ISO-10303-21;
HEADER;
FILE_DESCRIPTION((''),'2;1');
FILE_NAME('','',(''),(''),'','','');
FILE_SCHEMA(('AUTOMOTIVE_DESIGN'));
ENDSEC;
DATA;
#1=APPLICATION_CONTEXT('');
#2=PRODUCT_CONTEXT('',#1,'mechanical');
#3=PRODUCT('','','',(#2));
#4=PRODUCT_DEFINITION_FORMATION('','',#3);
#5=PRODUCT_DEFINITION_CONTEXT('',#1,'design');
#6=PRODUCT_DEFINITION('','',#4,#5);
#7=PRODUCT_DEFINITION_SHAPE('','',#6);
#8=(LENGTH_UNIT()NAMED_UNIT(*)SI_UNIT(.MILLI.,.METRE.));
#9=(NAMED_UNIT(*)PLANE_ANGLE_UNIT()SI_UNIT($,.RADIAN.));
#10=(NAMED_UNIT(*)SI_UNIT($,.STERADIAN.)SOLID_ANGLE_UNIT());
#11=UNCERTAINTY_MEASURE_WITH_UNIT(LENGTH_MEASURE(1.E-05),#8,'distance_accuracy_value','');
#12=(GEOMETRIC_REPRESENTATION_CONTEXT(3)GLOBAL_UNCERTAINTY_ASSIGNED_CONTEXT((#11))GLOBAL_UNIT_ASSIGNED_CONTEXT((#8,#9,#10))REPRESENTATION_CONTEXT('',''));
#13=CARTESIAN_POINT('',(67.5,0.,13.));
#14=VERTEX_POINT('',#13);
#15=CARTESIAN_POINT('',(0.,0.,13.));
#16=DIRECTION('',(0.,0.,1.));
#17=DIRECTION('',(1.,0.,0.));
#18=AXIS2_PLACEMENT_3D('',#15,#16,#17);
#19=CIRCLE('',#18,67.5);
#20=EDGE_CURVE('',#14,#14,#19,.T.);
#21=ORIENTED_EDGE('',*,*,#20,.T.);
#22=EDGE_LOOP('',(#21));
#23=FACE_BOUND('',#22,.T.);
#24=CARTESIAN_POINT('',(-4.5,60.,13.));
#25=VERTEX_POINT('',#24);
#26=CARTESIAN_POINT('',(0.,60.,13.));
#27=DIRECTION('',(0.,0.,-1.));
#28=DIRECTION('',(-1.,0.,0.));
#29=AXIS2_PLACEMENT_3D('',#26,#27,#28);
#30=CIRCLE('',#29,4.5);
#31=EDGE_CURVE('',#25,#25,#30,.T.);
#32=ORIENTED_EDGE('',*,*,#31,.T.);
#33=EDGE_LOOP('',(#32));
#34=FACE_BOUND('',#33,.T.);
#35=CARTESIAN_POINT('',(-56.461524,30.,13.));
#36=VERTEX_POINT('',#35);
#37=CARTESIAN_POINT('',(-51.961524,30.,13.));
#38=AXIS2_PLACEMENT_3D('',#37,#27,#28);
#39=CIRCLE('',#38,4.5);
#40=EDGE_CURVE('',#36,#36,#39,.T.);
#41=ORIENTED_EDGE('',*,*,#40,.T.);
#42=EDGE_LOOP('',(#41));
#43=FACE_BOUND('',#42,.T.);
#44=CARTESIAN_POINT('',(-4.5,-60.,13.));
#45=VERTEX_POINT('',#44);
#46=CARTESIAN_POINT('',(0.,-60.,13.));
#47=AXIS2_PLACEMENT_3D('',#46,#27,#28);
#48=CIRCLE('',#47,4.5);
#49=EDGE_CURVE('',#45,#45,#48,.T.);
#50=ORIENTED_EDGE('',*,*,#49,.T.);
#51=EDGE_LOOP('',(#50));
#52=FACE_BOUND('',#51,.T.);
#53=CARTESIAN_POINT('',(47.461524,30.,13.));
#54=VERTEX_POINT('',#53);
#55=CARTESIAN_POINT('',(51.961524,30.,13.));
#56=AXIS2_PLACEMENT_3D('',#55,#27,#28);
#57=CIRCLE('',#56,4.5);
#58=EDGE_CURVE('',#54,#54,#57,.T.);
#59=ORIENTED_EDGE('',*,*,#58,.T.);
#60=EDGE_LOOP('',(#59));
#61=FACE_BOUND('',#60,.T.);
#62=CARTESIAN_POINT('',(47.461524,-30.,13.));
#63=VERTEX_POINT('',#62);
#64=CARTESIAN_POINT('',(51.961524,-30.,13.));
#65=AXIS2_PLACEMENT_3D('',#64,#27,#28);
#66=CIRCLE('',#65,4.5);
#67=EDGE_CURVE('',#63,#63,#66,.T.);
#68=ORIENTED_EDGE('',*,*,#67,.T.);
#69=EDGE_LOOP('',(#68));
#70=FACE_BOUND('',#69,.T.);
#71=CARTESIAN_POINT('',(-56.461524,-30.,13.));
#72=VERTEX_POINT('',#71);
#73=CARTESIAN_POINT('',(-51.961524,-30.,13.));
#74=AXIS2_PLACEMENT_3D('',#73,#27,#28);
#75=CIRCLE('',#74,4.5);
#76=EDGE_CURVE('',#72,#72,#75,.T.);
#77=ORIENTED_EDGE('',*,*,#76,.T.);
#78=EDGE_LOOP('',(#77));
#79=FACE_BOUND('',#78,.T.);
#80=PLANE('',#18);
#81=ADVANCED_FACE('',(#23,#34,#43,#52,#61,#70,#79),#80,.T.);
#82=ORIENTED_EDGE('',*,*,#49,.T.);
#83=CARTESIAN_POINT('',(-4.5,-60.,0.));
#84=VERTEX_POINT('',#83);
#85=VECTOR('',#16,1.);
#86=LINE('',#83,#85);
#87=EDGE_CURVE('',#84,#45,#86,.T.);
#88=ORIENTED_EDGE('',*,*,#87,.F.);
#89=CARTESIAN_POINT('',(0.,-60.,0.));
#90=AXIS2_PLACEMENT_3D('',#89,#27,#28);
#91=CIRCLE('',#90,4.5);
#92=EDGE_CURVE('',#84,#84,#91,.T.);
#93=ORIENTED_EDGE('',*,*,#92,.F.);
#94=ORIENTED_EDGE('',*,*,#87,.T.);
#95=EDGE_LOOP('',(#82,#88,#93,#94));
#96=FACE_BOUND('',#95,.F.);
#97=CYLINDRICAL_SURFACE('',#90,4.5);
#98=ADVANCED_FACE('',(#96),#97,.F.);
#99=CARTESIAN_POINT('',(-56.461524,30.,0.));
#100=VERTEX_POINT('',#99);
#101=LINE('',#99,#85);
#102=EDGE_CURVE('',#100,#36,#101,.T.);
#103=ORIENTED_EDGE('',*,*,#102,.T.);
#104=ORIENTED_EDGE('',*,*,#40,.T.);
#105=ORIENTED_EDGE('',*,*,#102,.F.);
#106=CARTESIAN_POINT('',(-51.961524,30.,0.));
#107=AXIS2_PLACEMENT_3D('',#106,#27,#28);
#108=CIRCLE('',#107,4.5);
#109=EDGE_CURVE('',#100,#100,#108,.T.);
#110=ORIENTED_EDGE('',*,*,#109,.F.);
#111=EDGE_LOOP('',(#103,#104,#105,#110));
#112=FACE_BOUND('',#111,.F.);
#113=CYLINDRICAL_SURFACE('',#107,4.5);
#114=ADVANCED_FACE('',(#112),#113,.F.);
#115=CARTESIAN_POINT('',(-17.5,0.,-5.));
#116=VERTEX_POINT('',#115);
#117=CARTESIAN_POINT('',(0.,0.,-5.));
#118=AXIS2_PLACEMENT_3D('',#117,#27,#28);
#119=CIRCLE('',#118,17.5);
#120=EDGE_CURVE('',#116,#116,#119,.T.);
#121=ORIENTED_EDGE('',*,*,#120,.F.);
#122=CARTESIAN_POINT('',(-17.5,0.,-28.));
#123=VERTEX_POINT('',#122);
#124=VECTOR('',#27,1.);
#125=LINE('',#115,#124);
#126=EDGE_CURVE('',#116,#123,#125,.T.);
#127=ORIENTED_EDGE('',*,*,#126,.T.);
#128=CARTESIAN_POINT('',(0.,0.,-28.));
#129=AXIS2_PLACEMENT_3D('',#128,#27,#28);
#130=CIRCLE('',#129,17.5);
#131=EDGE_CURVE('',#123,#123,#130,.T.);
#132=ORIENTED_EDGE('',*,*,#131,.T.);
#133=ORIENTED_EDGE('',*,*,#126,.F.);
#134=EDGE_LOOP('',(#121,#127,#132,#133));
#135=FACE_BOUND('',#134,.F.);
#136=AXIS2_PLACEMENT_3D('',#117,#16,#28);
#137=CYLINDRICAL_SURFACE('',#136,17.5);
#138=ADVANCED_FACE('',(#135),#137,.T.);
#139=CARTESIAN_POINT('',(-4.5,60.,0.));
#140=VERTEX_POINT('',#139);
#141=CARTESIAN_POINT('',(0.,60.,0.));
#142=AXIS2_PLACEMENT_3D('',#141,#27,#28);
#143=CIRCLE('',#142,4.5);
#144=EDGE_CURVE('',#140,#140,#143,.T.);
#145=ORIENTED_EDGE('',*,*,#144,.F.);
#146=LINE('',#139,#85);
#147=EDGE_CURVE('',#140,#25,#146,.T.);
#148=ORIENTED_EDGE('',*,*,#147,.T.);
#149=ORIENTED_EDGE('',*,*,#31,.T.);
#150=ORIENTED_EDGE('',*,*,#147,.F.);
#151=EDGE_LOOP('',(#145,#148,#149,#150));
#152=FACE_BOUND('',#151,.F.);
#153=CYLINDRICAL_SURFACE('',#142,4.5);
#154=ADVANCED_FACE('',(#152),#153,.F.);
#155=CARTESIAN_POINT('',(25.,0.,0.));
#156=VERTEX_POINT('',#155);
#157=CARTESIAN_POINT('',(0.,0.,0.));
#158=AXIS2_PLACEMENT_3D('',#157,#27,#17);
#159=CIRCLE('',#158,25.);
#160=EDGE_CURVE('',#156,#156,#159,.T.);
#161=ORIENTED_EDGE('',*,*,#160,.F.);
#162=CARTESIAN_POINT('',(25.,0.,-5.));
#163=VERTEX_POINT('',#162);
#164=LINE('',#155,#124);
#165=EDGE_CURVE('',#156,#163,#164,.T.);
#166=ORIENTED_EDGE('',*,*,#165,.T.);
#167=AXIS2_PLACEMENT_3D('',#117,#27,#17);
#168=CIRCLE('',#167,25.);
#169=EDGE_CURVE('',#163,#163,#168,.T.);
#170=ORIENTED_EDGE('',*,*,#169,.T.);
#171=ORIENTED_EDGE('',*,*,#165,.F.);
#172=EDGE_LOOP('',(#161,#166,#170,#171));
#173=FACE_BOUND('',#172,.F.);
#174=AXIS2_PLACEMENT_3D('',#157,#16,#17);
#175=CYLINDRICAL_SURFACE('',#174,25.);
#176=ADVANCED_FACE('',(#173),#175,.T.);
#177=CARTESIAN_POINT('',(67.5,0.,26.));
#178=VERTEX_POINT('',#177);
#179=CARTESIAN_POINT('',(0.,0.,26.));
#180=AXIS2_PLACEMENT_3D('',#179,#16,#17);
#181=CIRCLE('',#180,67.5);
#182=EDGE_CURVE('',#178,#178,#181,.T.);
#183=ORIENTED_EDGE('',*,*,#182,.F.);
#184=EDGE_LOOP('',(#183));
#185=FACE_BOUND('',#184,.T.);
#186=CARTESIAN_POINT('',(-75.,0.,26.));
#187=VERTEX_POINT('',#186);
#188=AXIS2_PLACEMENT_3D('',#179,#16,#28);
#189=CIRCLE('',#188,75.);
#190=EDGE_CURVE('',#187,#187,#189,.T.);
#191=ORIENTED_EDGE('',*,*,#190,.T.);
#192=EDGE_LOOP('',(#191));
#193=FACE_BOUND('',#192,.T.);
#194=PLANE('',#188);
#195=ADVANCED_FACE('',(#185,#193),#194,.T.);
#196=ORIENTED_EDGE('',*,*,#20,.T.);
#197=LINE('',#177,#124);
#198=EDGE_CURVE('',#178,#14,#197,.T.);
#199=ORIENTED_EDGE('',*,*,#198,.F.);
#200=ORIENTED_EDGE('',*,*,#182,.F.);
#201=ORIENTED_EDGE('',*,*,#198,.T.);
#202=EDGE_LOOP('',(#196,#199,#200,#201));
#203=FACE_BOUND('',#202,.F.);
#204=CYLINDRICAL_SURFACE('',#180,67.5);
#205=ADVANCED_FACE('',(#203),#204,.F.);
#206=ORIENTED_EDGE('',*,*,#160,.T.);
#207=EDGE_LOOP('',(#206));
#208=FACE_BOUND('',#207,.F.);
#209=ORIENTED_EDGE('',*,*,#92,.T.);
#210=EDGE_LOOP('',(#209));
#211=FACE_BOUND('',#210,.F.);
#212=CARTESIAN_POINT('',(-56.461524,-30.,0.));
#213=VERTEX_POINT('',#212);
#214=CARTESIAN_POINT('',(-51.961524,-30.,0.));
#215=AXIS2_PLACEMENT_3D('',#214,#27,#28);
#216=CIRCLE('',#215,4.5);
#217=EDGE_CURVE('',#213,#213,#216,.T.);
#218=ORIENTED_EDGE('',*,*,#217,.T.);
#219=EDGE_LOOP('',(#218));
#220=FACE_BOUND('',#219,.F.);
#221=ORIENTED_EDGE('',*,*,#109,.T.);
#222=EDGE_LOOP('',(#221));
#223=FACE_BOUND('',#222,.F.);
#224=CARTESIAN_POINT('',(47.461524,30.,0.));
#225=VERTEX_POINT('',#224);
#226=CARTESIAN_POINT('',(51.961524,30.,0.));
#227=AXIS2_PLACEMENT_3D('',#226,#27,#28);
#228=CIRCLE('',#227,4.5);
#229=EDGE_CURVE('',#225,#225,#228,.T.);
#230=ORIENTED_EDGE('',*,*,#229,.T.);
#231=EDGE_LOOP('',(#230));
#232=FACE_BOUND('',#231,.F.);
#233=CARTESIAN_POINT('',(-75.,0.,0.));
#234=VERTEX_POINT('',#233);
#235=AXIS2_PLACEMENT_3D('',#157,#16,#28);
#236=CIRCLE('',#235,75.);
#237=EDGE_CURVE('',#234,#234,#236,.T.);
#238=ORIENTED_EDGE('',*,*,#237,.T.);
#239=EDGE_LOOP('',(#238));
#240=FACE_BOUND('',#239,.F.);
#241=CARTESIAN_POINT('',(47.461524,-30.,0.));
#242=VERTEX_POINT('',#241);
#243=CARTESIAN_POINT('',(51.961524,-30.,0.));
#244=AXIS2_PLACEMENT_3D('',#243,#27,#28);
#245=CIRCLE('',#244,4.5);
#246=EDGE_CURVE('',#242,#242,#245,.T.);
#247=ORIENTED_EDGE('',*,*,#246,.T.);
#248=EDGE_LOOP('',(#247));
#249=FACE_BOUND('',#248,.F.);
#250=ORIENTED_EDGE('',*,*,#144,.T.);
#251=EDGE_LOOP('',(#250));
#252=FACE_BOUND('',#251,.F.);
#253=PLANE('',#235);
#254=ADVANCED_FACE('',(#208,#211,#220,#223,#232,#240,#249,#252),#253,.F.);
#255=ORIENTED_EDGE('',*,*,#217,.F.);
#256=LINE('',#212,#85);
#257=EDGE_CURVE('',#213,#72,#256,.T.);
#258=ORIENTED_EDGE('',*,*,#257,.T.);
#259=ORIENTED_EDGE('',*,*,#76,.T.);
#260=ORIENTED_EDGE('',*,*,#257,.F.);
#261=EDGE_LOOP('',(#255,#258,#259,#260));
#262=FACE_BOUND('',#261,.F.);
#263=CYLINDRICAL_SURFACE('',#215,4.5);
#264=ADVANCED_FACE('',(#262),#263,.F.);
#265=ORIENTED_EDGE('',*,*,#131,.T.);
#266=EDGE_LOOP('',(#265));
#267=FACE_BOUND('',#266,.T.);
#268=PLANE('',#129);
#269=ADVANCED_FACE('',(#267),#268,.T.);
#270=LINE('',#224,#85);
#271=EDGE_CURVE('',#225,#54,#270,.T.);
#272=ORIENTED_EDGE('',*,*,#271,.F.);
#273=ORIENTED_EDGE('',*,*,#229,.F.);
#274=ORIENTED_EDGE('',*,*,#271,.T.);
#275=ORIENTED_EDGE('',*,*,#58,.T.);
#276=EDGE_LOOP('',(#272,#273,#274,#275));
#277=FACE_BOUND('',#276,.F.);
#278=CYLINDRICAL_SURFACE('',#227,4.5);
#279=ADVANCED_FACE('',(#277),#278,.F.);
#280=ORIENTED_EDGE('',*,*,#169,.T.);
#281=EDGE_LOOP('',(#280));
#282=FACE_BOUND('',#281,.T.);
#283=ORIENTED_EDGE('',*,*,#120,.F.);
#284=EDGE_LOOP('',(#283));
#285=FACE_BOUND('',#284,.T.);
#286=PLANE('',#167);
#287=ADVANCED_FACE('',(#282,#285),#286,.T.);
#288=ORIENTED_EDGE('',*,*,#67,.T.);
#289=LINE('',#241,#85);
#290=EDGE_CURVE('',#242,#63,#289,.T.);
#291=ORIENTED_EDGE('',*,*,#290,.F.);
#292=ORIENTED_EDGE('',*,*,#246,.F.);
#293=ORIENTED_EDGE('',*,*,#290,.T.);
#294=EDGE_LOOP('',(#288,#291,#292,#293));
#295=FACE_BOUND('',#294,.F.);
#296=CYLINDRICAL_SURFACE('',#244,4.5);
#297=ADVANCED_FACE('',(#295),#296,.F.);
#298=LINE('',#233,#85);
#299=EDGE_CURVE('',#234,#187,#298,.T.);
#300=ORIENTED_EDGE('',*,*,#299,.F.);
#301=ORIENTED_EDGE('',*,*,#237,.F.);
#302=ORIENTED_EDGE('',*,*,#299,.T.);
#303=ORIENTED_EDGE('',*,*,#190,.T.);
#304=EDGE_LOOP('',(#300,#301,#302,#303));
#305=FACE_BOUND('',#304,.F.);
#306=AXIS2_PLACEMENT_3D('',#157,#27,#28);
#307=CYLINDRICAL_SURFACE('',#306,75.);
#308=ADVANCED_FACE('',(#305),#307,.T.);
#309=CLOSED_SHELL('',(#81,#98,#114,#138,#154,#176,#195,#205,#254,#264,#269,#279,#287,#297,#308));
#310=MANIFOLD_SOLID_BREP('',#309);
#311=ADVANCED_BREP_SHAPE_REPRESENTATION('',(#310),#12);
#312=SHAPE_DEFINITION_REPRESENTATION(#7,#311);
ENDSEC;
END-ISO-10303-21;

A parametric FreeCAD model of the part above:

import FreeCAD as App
import Part
import Sketcher
from FreeCAD import Vector
Q = App.Units.Quantity

doc = App.newDocument("Part")
body = doc.addObject("PartDesign::Body", "Body")

# Sketch on XY plane
sketch1 = body.newObject("Sketcher::SketchObject", "Sketch")
sketch1.AttachmentSupport = (doc.getObject("XY_Plane"), [""])
sketch1.MapMode = "FlatFace"
sketch1.addGeometry(Part.Circle(Vector(0, 0, 0), Vector(0, 0, 1), 75), False)
sketch1.addConstraint([
    Sketcher.Constraint("Coincident", 0, 3, -1, 1),
    Sketcher.Constraint("Diameter", 0, Q("150 mm")),
])
pad1 = body.newObject("PartDesign::Pad", "Pad")
pad1.Profile = sketch1
pad1.Length = 26

# Sketch on XY plane
sketch2 = body.newObject("Sketcher::SketchObject", "Sketch001")
sketch2.AttachmentSupport = (doc.getObject("XY_Plane"), [""])
sketch2.MapMode = "FlatFace"
sketch2.AttachmentOffset = App.Placement(Vector(0, 0, 26), App.Rotation())
sketch2.addGeometry(Part.Circle(Vector(0, 0, 0), Vector(0, 0, 1), 67.5), False)
sketch2.addConstraint([
    Sketcher.Constraint("Coincident", 0, 3, -1, 1),
    Sketcher.Constraint("Diameter", 0, Q("135 mm")),
])
pocket1 = body.newObject("PartDesign::Pocket", "Pocket")
pocket1.Profile = sketch2
pocket1.Length = 13

# Sketch on XY plane
sketch3 = body.newObject("Sketcher::SketchObject", "Sketch002")
sketch3.AttachmentSupport = (doc.getObject("XY_Plane"), [""])
sketch3.MapMode = "FlatFace"
sketch3.addGeometry([
    Part.Circle(Vector(0, 60, 0), Vector(0, 0, 1), 4.5),  # 0
    Part.Circle(Vector(-51.961524, 30, 0), Vector(0, 0, 1), 4.5),  # 1
    Part.Circle(Vector(-51.961524, -30, 0), Vector(0, 0, 1), 4.5),  # 2
    Part.Circle(Vector(0, -60, 0), Vector(0, 0, 1), 4.5),  # 3
    Part.Circle(Vector(51.961524, -30, 0), Vector(0, 0, 1), 4.5),  # 4
    Part.Circle(Vector(51.961524, 30, 0), Vector(0, 0, 1), 4.5),  # 5
], False)
sketch3.addConstraint([
    Sketcher.Constraint("Equal", 0, 1),
    Sketcher.Constraint("Equal", 1, 2),
    Sketcher.Constraint("Equal", 2, 3),
    Sketcher.Constraint("Equal", 3, 4),
    Sketcher.Constraint("Equal", 4, 5),
    Sketcher.Constraint("Symmetric", 0, 3, 3, 3, -1, 1),
    Sketcher.Constraint("Symmetric", 1, 3, 4, 3, -1, 1),
    Sketcher.Constraint("Symmetric", 2, 3, 5, 3, -1, 1),
    Sketcher.Constraint("Symmetric", 2, 3, 4, 3, -2),
    Sketcher.Constraint("PointOnObject", 0, 3, -2),
    Sketcher.Constraint("Diameter", 0, Q("9 mm")),
    Sketcher.Constraint("DistanceY", -1, 1, 0, 3, Q("60 mm")),
    Sketcher.Constraint("DistanceY", -1, 1, 1, 3, Q("30 mm")),
    Sketcher.Constraint("DistanceX", 2, 3, 4, 3, Q("103.923048 mm")),
])
pocket2 = body.newObject("PartDesign::Pocket", "Pocket001")
pocket2.Profile = sketch3
pocket2.Type = "ThroughAll"
pocket2.Reversed = True

# Sketch on XY plane
sketch4 = body.newObject("Sketcher::SketchObject", "Sketch003")
sketch4.AttachmentSupport = (doc.getObject("XY_Plane"), [""])
sketch4.MapMode = "FlatFace"
sketch4.addGeometry(Part.Circle(Vector(0, 0, 0), Vector(0, 0, 1), 25), False)
sketch4.addConstraint([
    Sketcher.Constraint("Coincident", 0, 3, -1, 1),
    Sketcher.Constraint("Diameter", 0, Q("50 mm")),
])
pad2 = body.newObject("PartDesign::Pad", "Pad001")
pad2.Profile = sketch4
pad2.Length = 5
pad2.Reversed = True

# Sketch on XY plane
sketch5 = body.newObject("Sketcher::SketchObject", "Sketch004")
sketch5.AttachmentSupport = (doc.getObject("XY_Plane"), [""])
sketch5.MapMode = "FlatFace"
sketch5.AttachmentOffset = App.Placement(Vector(0, 0, -5), App.Rotation())
sketch5.addGeometry(Part.Circle(Vector(0, 0, 0), Vector(0, 0, 1), 17.5), False)
sketch5.addConstraint([
    Sketcher.Constraint("Coincident", 0, 3, -1, 1),
    Sketcher.Constraint("Diameter", 0, Q("35 mm")),
])
pad3 = body.newObject("PartDesign::Pad", "Pad002")
pad3.Profile = sketch5
pad3.Length = 23
pad3.Reversed = True

doc.recompute()
